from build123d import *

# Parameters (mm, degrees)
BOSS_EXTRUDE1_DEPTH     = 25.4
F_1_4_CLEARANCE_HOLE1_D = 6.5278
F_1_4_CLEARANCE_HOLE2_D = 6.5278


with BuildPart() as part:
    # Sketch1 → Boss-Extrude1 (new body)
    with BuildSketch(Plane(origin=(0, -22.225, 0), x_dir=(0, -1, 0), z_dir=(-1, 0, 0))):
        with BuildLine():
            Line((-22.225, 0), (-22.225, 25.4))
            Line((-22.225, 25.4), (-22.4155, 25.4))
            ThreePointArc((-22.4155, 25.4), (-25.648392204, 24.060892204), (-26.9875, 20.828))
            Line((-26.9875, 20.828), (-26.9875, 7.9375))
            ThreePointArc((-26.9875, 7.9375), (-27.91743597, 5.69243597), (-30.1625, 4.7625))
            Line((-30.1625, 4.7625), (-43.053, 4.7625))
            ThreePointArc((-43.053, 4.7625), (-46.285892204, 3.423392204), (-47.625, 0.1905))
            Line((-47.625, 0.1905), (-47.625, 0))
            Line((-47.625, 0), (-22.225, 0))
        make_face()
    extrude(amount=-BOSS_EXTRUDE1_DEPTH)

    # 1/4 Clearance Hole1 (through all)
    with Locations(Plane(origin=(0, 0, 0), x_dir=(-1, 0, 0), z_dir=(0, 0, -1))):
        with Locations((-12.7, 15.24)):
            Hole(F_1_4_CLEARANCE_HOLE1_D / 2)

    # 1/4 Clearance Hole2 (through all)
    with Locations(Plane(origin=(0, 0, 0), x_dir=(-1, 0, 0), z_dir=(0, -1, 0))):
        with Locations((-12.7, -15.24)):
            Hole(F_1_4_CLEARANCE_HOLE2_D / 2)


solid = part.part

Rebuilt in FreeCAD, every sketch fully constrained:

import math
import FreeCAD as App
import Part
import Sketcher
from FreeCAD import Vector
Q = App.Units.Quantity

doc = App.newDocument("Part")
body = doc.addObject("PartDesign::Body", "Body")

sketch1 = body.newObject("Sketcher::SketchObject", "Sketch")
sketch1.AttachmentSupport = (doc.getObject("YZ_Plane"), [""])
sketch1.MapMode = "FlatFace"
sketch1.addGeometry([
    Part.LineSegment(Vector(0, 0, 0), Vector(0, 25.4, 0)),
    Part.LineSegment(Vector(0, 25.4, 0), Vector(0.19, 25.4, 0)),
    Part.ArcOfCircle(Part.Circle(Vector(0.19, 20.83, 0), Vector(0, 0, 1), 4.57), math.radians(0), math.radians(90)),
    Part.LineSegment(Vector(4.76, 20.83, 0), Vector(4.76, 7.94, 0)),
    Part.ArcOfCircle(Part.Circle(Vector(7.94, 7.94, 0), Vector(0, 0, 1), 3.18), math.radians(-180), math.radians(-90)),
    Part.LineSegment(Vector(7.94, 4.76, 0), Vector(20.83, 4.76, 0)),
    Part.ArcOfCircle(Part.Circle(Vector(20.83, 0.19, 0), Vector(0, 0, 1), 4.57), math.radians(0), math.radians(90)),
    Part.LineSegment(Vector(25.4, 0.19, 0), Vector(25.4, 0, 0)),
    Part.LineSegment(Vector(25.4, 0, 0), Vector(0, 0, 0)),
], False)
sketch1.addConstraint([
    Sketcher.Constraint("Coincident", 0, 2, 1, 1),
    Sketcher.Constraint("Tangent", 1, 2, 2, 2),
    Sketcher.Constraint("Tangent", 2, 1, 3, 1),
    Sketcher.Constraint("Tangent", 3, 2, 4, 1),
    Sketcher.Constraint("Tangent", 4, 2, 5, 1),
    Sketcher.Constraint("Tangent", 5, 2, 6, 2),
    Sketcher.Constraint("Tangent", 6, 1, 7, 1),
    Sketcher.Constraint("Coincident", 7, 2, 8, 1),
    Sketcher.Constraint("Coincident", 8, 2, 0, 1),
    Sketcher.Constraint("Vertical", 0),
    Sketcher.Constraint("Horizontal", 1),
    Sketcher.Constraint("Vertical", 3),
    Sketcher.Constraint("Horizontal", 5),
    Sketcher.Constraint("Vertical", 7),
    Sketcher.Constraint("Horizontal", 8),
    Sketcher.Constraint("Coincident", 8, 2, -1, 1),
    Sketcher.Constraint("Equal", 2, 6),
    Sketcher.Constraint("Equal", 8, 0),
    Sketcher.Constraint("Equal", 5, 3),
    Sketcher.Constraint("DistanceX", 8, 2, 8, 1, Q("1 in")),
    Sketcher.Constraint("Radius", 2, Q("0.18 in")),
    Sketcher.Constraint("Radius", 4, Q("0.125 in")),
    Sketcher.Constraint("DistanceX", 1, 1, 1, 2, Q("0.0075 in")),
])
pad1 = body.newObject("PartDesign::Pad", "Pad")
pad1.Profile = sketch1
pad1.Length = Q("1 in")

sketch2 = body.newObject("Sketcher::SketchObject", "Sketch001")
sketch2.AttachmentSupport = (doc.getObject("XY_Plane"), [""])
sketch2.MapMode = "FlatFace"
sketch2.addGeometry(Part.Circle(Vector(12.7, 15.2, 0), Vector(0, 0, 1), 3.3), False)
sketch2.addConstraint([
    Sketcher.Constraint("Diameter", 0, Q("0.257 in")),
    Sketcher.Constraint("DistanceX", -1, 1, 0, 3, Q("0.5 in")),
    Sketcher.Constraint("DistanceY", -1, 1, 0, 3, Q("0.6 in")),
])
doc.recompute()
hole = body.newObject("PartDesign::Hole", "Hole")
hole.Profile = sketch2
hole.ThreadType = "None"
hole.Diameter = Q("0.257 in")
hole.DepthType = "ThroughAll"
hole.Reversed = True

sketch3 = body.newObject("Sketcher::SketchObject", "Sketch002")
sketch3.AttachmentSupport = (doc.getObject("XZ_Plane"), [""])
sketch3.MapMode = "FlatFace"
sketch3.addGeometry(Part.Circle(Vector(12.7, 15.2, 0), Vector(0, 0, 1), 3.3), False)
sketch3.addConstraint([
    Sketcher.Constraint("Diameter", 0, Q("0.257 in")),
    Sketcher.Constraint("DistanceX", -1, 1, 0, 3, Q("0.5 in")),
    Sketcher.Constraint("DistanceY", -1, 1, 0, 3, Q("0.6 in")),
])
doc.recompute()
hole2 = body.newObject("PartDesign::Hole", "Hole001")
hole2.Profile = sketch3
hole2.ThreadType = "None"
hole2.Diameter = Q("0.257 in")
hole2.DepthType = "ThroughAll"

doc.recompute()
